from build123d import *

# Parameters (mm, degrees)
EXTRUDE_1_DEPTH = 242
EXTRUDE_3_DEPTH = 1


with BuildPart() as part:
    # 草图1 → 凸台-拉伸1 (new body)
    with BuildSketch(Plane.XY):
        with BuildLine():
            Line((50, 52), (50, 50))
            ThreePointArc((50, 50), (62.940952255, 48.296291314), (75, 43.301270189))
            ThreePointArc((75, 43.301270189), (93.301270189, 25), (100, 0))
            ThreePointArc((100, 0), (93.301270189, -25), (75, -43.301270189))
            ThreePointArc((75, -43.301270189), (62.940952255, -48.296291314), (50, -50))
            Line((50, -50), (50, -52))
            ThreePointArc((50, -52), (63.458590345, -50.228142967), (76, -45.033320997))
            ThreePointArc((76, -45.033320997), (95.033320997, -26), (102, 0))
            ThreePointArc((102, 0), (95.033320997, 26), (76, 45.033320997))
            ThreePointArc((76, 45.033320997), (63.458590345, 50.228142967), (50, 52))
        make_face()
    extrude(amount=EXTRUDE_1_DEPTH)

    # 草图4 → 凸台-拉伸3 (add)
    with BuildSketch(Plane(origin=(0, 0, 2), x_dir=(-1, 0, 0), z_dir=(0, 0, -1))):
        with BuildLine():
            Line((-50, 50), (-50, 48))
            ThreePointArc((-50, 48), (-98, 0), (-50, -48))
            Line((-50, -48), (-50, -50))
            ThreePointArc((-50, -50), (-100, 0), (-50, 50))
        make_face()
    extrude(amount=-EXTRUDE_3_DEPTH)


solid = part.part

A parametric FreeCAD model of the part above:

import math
import FreeCAD as App
import Part
import Sketcher

doc = App.newDocument("Part")
params = doc.addObject("Spreadsheet::Sheet", "Params")
for row, (alias, value) in enumerate([
    ("sketch1_radius", "50 mm"),
    ("sketch1_radius2", "52 mm"),
    ("pad1_length", "242 mm"),
    ("sketch2_radius", "50 mm"),
    ("sketch2_radius2", "48 mm"),
    ("pad2_length", "1 mm"),
], start=1):
    params.set(f"A{row}", alias)
    params.set(f"B{row}", "=" + value)
    params.setAlias(f"B{row}", alias)

body = doc.addObject("PartDesign::Body", "Body")

sketch1 = body.newObject("Sketcher::SketchObject", "Sketch")
sketch1.AttachmentSupport = (doc.getObject("XY_Plane"), [""])
sketch1.MapMode = "FlatFace"
sketch1.addGeometry(Part.LineSegment(App.Vector(50, 52, 0), App.Vector(50, 50, 0)), False)
sketch1.addGeometry(Part.ArcOfCircle(Part.Circle(App.Vector(50, 0, 0), App.Vector(0, 0, 1), 50), math.radians(60), math.radians(90)), False)
sketch1.addGeometry(Part.ArcOfCircle(Part.Circle(App.Vector(50, 0, 0), App.Vector(0, 0, 1), 50), math.radians(0), math.radians(60)), False)
sketch1.addGeometry(Part.ArcOfCircle(Part.Circle(App.Vector(50, 0, 0), App.Vector(0, 0, 1), 50), math.radians(-60), math.radians(0)), False)
sketch1.addGeometry(Part.ArcOfCircle(Part.Circle(App.Vector(50, 0, 0), App.Vector(0, 0, 1), 50), math.radians(-90), math.radians(-60)), False)
sketch1.addGeometry(Part.LineSegment(App.Vector(50, -50, 0), App.Vector(50, -52, 0)), False)
sketch1.addGeometry(Part.ArcOfCircle(Part.Circle(App.Vector(50, 0, 0), App.Vector(0, 0, 1), 52), math.radians(-90), math.radians(-60)), False)
sketch1.addGeometry(Part.ArcOfCircle(Part.Circle(App.Vector(50, 0, 0), App.Vector(0, 0, 1), 52), math.radians(-60), math.radians(0)), False)
sketch1.addGeometry(Part.ArcOfCircle(Part.Circle(App.Vector(50, 0, 0), App.Vector(0, 0, 1), 52), math.radians(0), math.radians(60)), False)
sketch1.addGeometry(Part.ArcOfCircle(Part.Circle(App.Vector(50, 0, 0), App.Vector(0, 0, 1), 52), math.radians(60), math.radians(90)), False)
sketch1.addConstraint(Sketcher.Constraint("Coincident", 0, 2, 1, 2))
sketch1.addConstraint(Sketcher.Constraint("Tangent", 1, 1, 2, 2))
sketch1.addConstraint(Sketcher.Constraint("Tangent", 2, 1, 3, 2))
sketch1.addConstraint(Sketcher.Constraint("Tangent", 3, 1, 4, 2))
sketch1.addConstraint(Sketcher.Constraint("Coincident", 4, 1, 5, 1))
sketch1.addConstraint(Sketcher.Constraint("Coincident", 5, 2, 6, 1))
sketch1.addConstraint(Sketcher.Constraint("Tangent", 6, 2, 7, 1))
sketch1.addConstraint(Sketcher.Constraint("Tangent", 7, 2, 8, 1))
sketch1.addConstraint(Sketcher.Constraint("Tangent", 8, 2, 9, 1))
sketch1.addConstraint(Sketcher.Constraint("Coincident", 9, 2, 0, 1))
sketch1.addConstraint(Sketcher.Constraint("Vertical", 0))
sketch1.addConstraint(Sketcher.Constraint("Vertical", 5))
sketch1.addConstraint(Sketcher.Constraint("Coincident", 3, 3, 1, 3))
sketch1.addConstraint(Sketcher.Constraint("Coincident", 6, 3, 1, 3))
sketch1.addConstraint(Sketcher.Constraint("Coincident", 8, 3, 1, 3))
sketch1.addConstraint(Sketcher.Constraint("Equal", 3, 4))
sketch1.addConstraint(Sketcher.Constraint("Equal", 8, 9))
sketch1.addConstraint(Sketcher.Constraint("Symmetric", 1, 1, 3, 1, -1))
sketch1.addConstraint(Sketcher.Constraint("PointOnObject", 2, 1, -1))
sketch1.addConstraint(Sketcher.Constraint("PointOnObject", 7, 2, -1))
sketch1.addConstraint(Sketcher.Constraint("Vertical", 9, 3, 0, 2))
sketch1.addConstraint(Sketcher.Constraint("Vertical", 0, 2, 4, 1))
sketch1.addConstraint(Sketcher.Constraint("Vertical", 6, 2, 8, 2))
sketch1.addConstraint(Sketcher.Constraint("Radius", 1, 50.0))
sketch1.addConstraint(Sketcher.Constraint("Radius", 6, 52.0))
sketch1.addConstraint(Sketcher.Constraint("DistanceX", -1, 1, 1, 3, 50.0))
sketch1.addConstraint(Sketcher.Constraint("DistanceX", -1, 1, 1, 1, 75.0))
sketch1.addConstraint(Sketcher.Constraint("DistanceX", -1, 1, 6, 2, 76.0))
sketch1.setExpression("Constraints[23]", "Params.sketch1_radius")
sketch1.setExpression("Constraints[24]", "Params.sketch1_radius2")
pad1 = body.newObject("PartDesign::Pad", "Pad")
pad1.Profile = sketch1
pad1.setExpression("Length", "Params.pad1_length")

sketch2 = body.newObject("Sketcher::SketchObject", "Sketch001")
sketch2.AttachmentSupport = (doc.getObject("XY_Plane"), [""])
sketch2.MapMode = "FlatFace"
sketch2.AttachmentOffset = App.Placement(App.Vector(0, 0, 2), App.Rotation())
sketch2.addGeometry(Part.LineSegment(App.Vector(50, 48, 0), App.Vector(50, 50, 0)), False)
sketch2.addGeometry(Part.ArcOfCircle(Part.Circle(App.Vector(50, 0, 0), App.Vector(0, 0, 1), 50), math.radians(-90), math.radians(90)), False)
sketch2.addGeometry(Part.LineSegment(App.Vector(50, -50, 0), App.Vector(50, -48, 0)), False)
sketch2.addGeometry(Part.ArcOfCircle(Part.Circle(App.Vector(50, 0, 0), App.Vector(0, 0, 1), 48), math.radians(-90), math.radians(90)), False)
sketch2.addConstraint(Sketcher.Constraint("Coincident", 0, 2, 1, 2))
sketch2.addConstraint(Sketcher.Constraint("Coincident", 1, 1, 2, 1))
sketch2.addConstraint(Sketcher.Constraint("Coincident", 2, 2, 3, 1))
sketch2.addConstraint(Sketcher.Constraint("Coincident", 3, 2, 0, 1))
sketch2.addConstraint(Sketcher.Constraint("Vertical", 0))
sketch2.addConstraint(Sketcher.Constraint("Vertical", 2))
sketch2.addConstraint(Sketcher.Constraint("Coincident", 3, 3, 1, 3))
sketch2.addConstraint(Sketcher.Constraint("Symmetric", 0, 2, 1, 1, -1))
sketch2.addConstraint(Sketcher.Constraint("Vertical", 3, 3, 0, 2))
sketch2.addConstraint(Sketcher.Constraint("Radius", 1, 50.0))
sketch2.addConstraint(Sketcher.Constraint("Radius", 3, 48.0))
sketch2.addConstraint(Sketcher.Constraint("DistanceX", -1, 1, 1, 3, 50.0))
sketch2.setExpression("Constraints[9]", "Params.sketch2_radius")
sketch2.setExpression("Constraints[10]", "Params.sketch2_radius2")
pad2 = body.newObject("PartDesign::Pad", "Pad001")
pad2.Profile = sketch2
pad2.setExpression("Length", "Params.pad2_length")

doc.recompute()
